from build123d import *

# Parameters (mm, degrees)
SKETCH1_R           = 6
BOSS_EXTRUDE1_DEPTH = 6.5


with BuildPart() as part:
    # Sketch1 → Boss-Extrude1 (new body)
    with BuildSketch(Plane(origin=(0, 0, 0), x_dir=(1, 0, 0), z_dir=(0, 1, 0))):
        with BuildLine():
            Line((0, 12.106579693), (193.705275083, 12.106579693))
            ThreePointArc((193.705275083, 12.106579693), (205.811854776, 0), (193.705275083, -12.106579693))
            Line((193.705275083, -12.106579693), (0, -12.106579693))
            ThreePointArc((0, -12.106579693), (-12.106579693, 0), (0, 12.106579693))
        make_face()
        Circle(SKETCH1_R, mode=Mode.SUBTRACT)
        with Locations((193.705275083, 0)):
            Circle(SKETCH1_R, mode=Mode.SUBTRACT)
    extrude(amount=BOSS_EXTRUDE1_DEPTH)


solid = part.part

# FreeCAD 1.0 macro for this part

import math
import FreeCAD as App
import Part
import Sketcher
from FreeCAD import Vector

doc = App.newDocument("Part")
body = doc.addObject("PartDesign::Body", "Body")

sketch1 = body.newObject("Sketcher::SketchObject", "Sketch")
sketch1.AttachmentSupport = (doc.getObject("XZ_Plane"), [""])
sketch1.MapMode = "FlatFace"
sketch1.addGeometry(Part.LineSegment(Vector(194, -12, 0), Vector(0, -12, 0)), False)
sketch1.addGeometry(Part.ArcOfCircle(Part.Circle(Vector(0, 0, 0), Vector(0, 0, 1), 12), math.radians(90), math.radians(270)), False)
sketch1.addGeometry(Part.LineSegment(Vector(0, 12, 0), Vector(194, 12, 0)), False)
sketch1.addGeometry(Part.ArcOfCircle(Part.Circle(Vector(194, 0, 0), Vector(0, 0, 1), 12), math.radians(-90), math.radians(90)), False)
sketch1.addGeometry(Part.Circle(Vector(194, 0, 0), Vector(0, 0, 1), 6), False)
sketch1.addGeometry(Part.Circle(Vector(0, 0, 0), Vector(0, 0, 1), 6), False)
sketch1.addConstraint(Sketcher.Constraint("Tangent", 0, 2, 1, 2))
sketch1.addConstraint(Sketcher.Constraint("Tangent", 1, 1, 2, 1))
sketch1.addConstraint(Sketcher.Constraint("Tangent", 2, 2, 3, 2))
sketch1.addConstraint(Sketcher.Constraint("Tangent", 3, 1, 0, 1))
sketch1.addConstraint(Sketcher.Constraint("Horizontal", 0))
sketch1.addConstraint(Sketcher.Constraint("Horizontal", 2))
sketch1.addConstraint(Sketcher.Constraint("Coincident", 1, 3, -1, 1))
sketch1.addConstraint(Sketcher.Constraint("Coincident", 5, 3, -1, 1))
sketch1.addConstraint(Sketcher.Constraint("Coincident", 4, 3, 3, 3))
sketch1.addConstraint(Sketcher.Constraint("Equal", 4, 5))
sketch1.addConstraint(Sketcher.Constraint("Diameter", 4, 12.0))
sketch1.addConstraint(Sketcher.Constraint("Radius", 1, 12.10658))
sketch1.addConstraint(Sketcher.Constraint("DistanceX", 0, 2, 0, 1, 193.705275))
pad1 = body.newObject("PartDesign::Pad", "Pad")
pad1.Profile = sketch1
pad1.Length = 6.5
pad1.Reversed = True

doc.recompute()
